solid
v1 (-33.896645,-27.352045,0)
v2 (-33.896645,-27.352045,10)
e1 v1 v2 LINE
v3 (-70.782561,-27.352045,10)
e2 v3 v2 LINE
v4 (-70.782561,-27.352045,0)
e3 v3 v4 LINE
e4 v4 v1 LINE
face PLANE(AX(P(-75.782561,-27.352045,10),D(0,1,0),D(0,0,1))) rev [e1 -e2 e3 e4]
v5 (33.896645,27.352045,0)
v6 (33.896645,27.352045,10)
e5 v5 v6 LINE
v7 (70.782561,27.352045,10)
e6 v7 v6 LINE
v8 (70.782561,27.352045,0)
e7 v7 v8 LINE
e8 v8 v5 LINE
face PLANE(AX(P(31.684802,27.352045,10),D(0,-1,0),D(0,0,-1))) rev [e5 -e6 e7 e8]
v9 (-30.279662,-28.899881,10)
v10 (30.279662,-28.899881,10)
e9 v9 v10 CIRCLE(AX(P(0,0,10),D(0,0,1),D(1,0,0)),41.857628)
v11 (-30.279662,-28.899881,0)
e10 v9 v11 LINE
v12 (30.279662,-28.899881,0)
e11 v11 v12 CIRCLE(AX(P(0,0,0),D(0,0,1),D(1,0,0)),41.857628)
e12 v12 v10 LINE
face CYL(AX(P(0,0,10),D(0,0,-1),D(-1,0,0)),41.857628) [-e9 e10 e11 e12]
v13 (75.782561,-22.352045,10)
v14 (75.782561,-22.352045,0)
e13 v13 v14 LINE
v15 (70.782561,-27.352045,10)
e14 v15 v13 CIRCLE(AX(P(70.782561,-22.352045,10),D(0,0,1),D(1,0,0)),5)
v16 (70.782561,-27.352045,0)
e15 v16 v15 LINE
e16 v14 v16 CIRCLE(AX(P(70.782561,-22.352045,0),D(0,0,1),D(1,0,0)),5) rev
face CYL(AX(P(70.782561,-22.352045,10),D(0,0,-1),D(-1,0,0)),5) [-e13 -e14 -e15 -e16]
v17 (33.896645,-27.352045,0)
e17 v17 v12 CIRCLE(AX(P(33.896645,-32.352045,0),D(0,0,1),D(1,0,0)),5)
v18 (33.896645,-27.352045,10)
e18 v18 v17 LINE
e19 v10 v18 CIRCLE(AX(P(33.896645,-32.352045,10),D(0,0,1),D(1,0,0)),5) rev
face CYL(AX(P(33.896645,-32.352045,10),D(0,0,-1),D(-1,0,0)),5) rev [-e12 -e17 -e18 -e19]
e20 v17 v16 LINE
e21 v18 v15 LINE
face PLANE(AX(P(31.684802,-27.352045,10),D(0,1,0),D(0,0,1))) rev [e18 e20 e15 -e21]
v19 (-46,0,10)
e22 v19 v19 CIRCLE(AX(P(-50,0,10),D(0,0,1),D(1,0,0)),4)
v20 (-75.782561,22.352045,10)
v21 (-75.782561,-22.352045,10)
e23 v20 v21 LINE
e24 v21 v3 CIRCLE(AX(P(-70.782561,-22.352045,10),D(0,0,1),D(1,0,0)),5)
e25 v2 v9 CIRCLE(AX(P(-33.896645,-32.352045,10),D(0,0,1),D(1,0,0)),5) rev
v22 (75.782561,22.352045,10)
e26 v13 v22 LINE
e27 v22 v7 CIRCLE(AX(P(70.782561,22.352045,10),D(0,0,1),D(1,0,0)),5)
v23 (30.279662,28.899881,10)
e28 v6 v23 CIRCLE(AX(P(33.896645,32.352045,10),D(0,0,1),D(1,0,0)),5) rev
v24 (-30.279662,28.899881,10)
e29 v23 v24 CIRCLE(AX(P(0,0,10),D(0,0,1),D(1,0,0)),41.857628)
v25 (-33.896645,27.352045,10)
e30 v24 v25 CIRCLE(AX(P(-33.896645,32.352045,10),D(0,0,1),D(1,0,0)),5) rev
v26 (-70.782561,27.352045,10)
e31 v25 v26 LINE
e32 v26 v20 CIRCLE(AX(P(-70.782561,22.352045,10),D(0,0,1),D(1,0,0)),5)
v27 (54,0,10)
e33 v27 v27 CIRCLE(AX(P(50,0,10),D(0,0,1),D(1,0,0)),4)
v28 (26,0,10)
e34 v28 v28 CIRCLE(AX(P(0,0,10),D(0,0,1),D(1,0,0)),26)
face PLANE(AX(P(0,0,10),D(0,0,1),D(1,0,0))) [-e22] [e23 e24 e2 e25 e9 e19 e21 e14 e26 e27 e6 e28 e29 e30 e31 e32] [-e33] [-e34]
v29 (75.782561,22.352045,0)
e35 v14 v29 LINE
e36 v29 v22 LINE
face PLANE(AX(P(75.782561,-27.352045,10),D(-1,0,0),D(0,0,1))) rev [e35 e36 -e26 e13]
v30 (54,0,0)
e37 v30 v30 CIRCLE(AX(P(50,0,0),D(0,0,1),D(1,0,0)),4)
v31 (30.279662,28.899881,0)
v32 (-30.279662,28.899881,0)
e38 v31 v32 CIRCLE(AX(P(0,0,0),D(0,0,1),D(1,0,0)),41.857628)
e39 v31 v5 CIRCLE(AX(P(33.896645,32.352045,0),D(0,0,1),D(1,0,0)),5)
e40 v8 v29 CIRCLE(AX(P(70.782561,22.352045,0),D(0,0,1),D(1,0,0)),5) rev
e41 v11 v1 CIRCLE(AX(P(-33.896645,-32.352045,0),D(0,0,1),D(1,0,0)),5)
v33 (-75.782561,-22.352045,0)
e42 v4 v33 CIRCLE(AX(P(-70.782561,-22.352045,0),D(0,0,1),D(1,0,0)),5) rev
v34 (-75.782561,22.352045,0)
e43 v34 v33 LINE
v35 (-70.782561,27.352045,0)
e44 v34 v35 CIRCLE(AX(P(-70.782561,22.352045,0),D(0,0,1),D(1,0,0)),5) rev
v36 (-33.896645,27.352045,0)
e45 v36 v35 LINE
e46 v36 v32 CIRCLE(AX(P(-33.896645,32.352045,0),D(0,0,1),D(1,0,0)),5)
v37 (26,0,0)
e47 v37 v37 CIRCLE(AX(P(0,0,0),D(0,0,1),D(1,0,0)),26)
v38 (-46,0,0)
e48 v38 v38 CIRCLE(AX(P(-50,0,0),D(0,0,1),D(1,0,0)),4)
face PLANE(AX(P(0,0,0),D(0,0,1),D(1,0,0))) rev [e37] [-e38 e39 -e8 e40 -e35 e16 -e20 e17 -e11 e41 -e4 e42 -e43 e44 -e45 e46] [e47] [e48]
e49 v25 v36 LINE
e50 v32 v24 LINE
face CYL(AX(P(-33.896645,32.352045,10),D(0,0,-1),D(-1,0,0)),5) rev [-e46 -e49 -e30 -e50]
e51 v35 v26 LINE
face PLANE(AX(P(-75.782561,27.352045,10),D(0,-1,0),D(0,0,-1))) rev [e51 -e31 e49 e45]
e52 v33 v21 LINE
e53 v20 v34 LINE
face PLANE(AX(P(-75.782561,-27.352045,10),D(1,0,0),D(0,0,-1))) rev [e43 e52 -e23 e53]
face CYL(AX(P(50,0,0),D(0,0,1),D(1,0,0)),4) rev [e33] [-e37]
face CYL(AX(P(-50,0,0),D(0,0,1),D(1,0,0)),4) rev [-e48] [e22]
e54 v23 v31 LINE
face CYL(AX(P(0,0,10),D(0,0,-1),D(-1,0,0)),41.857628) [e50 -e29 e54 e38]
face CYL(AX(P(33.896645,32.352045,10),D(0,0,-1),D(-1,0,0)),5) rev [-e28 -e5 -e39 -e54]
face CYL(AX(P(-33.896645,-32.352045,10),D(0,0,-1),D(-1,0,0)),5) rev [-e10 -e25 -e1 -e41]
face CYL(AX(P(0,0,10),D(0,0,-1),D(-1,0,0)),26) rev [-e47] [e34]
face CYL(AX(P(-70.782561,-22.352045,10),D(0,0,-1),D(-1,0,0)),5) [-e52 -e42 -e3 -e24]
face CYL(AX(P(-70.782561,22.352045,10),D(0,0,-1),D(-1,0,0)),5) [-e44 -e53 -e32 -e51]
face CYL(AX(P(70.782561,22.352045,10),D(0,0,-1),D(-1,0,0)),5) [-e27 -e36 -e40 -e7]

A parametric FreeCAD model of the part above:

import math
import FreeCAD as App
import Part
import Sketcher

V = App.Vector
Q = App.Units.Quantity


def edges_at(feature, points):
    """Names of the edges that pass closest to the given points."""
    edges = feature.Shape.Edges
    near = lambda p: min(range(len(edges)), key=lambda i: edges[i].distToShape(Part.Vertex(*p))[0])
    return sorted({f"Edge{near(p) + 1}" for p in points})

doc = App.newDocument("Part")
body = doc.addObject("PartDesign::Body", "Body")

# Sketch on XY plane
sketch1 = body.newObject("Sketcher::SketchObject", "Sketch")
sketch1.AttachmentSupport = (doc.getObject("XY_Plane"), [""])
sketch1.MapMode = "FlatFace"
sketch1.addGeometry(Part.LineSegment(V(76, 27, 0), V(32, 27, 0)), False)
sketch1.addGeometry(Part.ArcOfCircle(Part.Circle(V(0, 0, 0), V(0, 0, 1), 42), math.radians(41), math.radians(139)), False)
sketch1.addGeometry(Part.LineSegment(V(-32, 27, 0), V(-76, 27, 0)), False)
sketch1.addGeometry(Part.LineSegment(V(-76, 27, 0), V(-76, -27, 0)), False)
sketch1.addGeometry(Part.LineSegment(V(-76, -27, 0), V(-32, -27, 0)), False)
sketch1.addGeometry(Part.ArcOfCircle(Part.Circle(V(0, 0, 0), V(0, 0, 1), 42), math.radians(-139), math.radians(-41)), False)
sketch1.addGeometry(Part.LineSegment(V(32, -27, 0), V(76, -27, 0)), False)
sketch1.addGeometry(Part.LineSegment(V(76, -27, 0), V(76, 27, 0)), False)
sketch1.addGeometry(Part.Circle(V(0, 0, 0), V(0, 0, 1), 26), False)
sketch1.addConstraint(Sketcher.Constraint("Coincident", 0, 2, 1, 1))
sketch1.addConstraint(Sketcher.Constraint("Coincident", 1, 2, 2, 1))
sketch1.addConstraint(Sketcher.Constraint("Coincident", 2, 2, 3, 1))
sketch1.addConstraint(Sketcher.Constraint("Coincident", 3, 2, 4, 1))
sketch1.addConstraint(Sketcher.Constraint("Coincident", 4, 2, 5, 1))
sketch1.addConstraint(Sketcher.Constraint("Coincident", 5, 2, 6, 1))
sketch1.addConstraint(Sketcher.Constraint("Coincident", 6, 2, 7, 1))
sketch1.addConstraint(Sketcher.Constraint("Coincident", 7, 2, 0, 1))
sketch1.addConstraint(Sketcher.Constraint("Horizontal", 0))
sketch1.addConstraint(Sketcher.Constraint("Horizontal", 2))
sketch1.addConstraint(Sketcher.Constraint("Vertical", 3))
sketch1.addConstraint(Sketcher.Constraint("Horizontal", 4))
sketch1.addConstraint(Sketcher.Constraint("Horizontal", 6))
sketch1.addConstraint(Sketcher.Constraint("Vertical", 7))
sketch1.addConstraint(Sketcher.Constraint("Coincident", 1, 3, -1, 1))
sketch1.addConstraint(Sketcher.Constraint("Coincident", 5, 3, -1, 1))
sketch1.addConstraint(Sketcher.Constraint("Coincident", 8, 3, -1, 1))
sketch1.addConstraint(Sketcher.Constraint("Equal", 1, 5))
sketch1.addConstraint(Sketcher.Constraint("Symmetric", 2, 2, 6, 2, -1, 1))
sketch1.addConstraint(Sketcher.Constraint("Horizontal", 0, 2, 1, 2))
sketch1.addConstraint(Sketcher.Constraint("Horizontal", 4, 2, 5, 2))
sketch1.addConstraint(Sketcher.Constraint("Diameter", 8, Q("52 mm")))
sketch1.addConstraint(Sketcher.Constraint("Radius", 1, Q("41.857628 mm")))
sketch1.addConstraint(Sketcher.Constraint("DistanceX", 0, 2, 0, 1, Q("44.097759 mm")))
sketch1.addConstraint(Sketcher.Constraint("DistanceY", 3, 2, 3, 1, Q("54.704089 mm")))
pad1 = body.newObject("PartDesign::Pad", "Pad")
pad1.Profile = sketch1
pad1.Length = 10
doc.recompute()

fillet = body.newObject("PartDesign::Fillet", "Fillet")
fillet.Base = (pad1, edges_at(pad1, [
    (75.783, -27.352, 5),
    (31.685, -27.352, 5),
    (-31.685, -27.352, 5),
    (-75.783, -27.352, 5),
    (-75.783, 27.352, 5),
    (-31.685, 27.352, 5),
    (31.685, 27.352, 5),
    (75.783, 27.352, 5),
]))
fillet.Radius = 5

# Sketch on XY plane
sketch2 = body.newObject("Sketcher::SketchObject", "Sketch001")
sketch2.AttachmentSupport = (doc.getObject("XY_Plane"), [""])
sketch2.MapMode = "FlatFace"
sketch2.AttachmentOffset = App.Placement(V(0, 0, 10), App.Rotation())
sketch2.addGeometry(Part.Circle(V(-50, 0, 0), V(0, 0, 1), 4), False)
sketch2.addGeometry(Part.Circle(V(50, 0, 0), V(0, 0, 1), 4), False)
sketch2.addConstraint(Sketcher.Constraint("Equal", 0, 1))
sketch2.addConstraint(Sketcher.Constraint("Symmetric", 0, 3, 1, 3, -1, 1))
sketch2.addConstraint(Sketcher.Constraint("PointOnObject", 0, 3, -1))
sketch2.addConstraint(Sketcher.Constraint("Diameter", 0, Q("8 mm")))
sketch2.addConstraint(Sketcher.Constraint("DistanceX", 0, 3, -1, 1, Q("50 mm")))
pocket1 = body.newObject("PartDesign::Pocket", "Pocket")
pocket1.Profile = sketch2
pocket1.Length = 10

doc.recompute()
